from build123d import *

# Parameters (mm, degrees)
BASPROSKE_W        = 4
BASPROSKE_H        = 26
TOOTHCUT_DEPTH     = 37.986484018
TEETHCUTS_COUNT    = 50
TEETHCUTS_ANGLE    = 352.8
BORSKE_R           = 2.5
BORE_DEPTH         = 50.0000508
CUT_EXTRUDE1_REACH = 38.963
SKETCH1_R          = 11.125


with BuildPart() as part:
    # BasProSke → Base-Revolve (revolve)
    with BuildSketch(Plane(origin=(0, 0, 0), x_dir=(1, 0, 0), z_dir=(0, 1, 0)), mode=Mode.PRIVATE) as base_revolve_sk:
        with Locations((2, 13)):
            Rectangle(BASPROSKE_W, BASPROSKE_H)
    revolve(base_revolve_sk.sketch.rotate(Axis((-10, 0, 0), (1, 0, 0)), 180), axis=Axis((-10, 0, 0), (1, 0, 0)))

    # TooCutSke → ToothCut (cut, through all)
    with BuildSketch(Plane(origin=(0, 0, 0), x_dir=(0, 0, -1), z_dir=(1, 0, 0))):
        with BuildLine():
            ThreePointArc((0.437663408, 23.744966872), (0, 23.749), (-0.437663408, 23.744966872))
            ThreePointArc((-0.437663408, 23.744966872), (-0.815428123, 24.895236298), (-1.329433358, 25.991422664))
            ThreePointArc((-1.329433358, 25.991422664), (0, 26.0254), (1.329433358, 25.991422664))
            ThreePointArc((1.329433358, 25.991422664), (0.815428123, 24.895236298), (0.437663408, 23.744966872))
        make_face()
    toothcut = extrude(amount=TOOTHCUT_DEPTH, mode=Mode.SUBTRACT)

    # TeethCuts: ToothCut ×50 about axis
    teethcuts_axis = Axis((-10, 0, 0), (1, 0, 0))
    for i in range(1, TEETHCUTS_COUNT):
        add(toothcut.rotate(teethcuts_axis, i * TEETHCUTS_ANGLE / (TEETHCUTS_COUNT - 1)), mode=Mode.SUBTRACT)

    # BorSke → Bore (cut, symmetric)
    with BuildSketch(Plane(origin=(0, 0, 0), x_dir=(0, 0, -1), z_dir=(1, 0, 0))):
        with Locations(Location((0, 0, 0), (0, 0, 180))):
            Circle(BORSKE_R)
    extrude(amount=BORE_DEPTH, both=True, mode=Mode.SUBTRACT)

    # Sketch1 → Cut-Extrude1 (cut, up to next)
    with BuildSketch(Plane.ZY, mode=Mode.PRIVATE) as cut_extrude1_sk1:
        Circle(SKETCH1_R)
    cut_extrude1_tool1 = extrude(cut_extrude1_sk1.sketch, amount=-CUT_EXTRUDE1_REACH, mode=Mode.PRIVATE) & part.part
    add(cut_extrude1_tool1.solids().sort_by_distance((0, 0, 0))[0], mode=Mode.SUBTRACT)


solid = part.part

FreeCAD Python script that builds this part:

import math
import FreeCAD as App
import Part
import Sketcher
Q = App.Units.Quantity

doc = App.newDocument("Part")
params = doc.addObject("Spreadsheet::Sheet", "Params")
for row, (alias, value) in enumerate([
    ("sketch1_width", "4 mm"),
    ("sketch1_height", "26 mm"),
    ("revolution_angle", "360 deg"),
    ("sketch2_radius", "10 mm"),
    ("sketch3_diameter", "5 mm"),
    ("pocket2_length", "100.000102 mm"),
    ("sketch4_diameter", "22.25 mm"),
    ("pocket3_length", "4 mm"),
], start=1):
    params.set(f"A{row}", alias)
    params.set(f"B{row}", "=" + value)
    params.setAlias(f"B{row}", alias)

body = doc.addObject("PartDesign::Body", "Body")

# Sketch on XZ plane
sketch1 = doc.addObject("Sketcher::SketchObject", "Sketch")
body.addObject(sketch1)
sketch1.AttachmentSupport = (doc.XZ_Plane, [""])
sketch1.MapMode = "FlatFace"
sketch1.addGeometry([
    Part.LineSegment(App.Vector(0, -26, 0), App.Vector(0, 0, 0)),
    Part.LineSegment(App.Vector(0, 0, 0), App.Vector(4, 0, 0)),
    Part.LineSegment(App.Vector(4, 0, 0), App.Vector(4, -26, 0)),
    Part.LineSegment(App.Vector(4, -26, 0), App.Vector(0, -26, 0)),
], False)
sketch1.addConstraint([
    Sketcher.Constraint("Coincident", 0, 2, 1, 1),
    Sketcher.Constraint("Coincident", 1, 2, 2, 1),
    Sketcher.Constraint("Coincident", 2, 2, 3, 1),
    Sketcher.Constraint("Coincident", 3, 2, 0, 1),
    Sketcher.Constraint("Vertical", 0),
    Sketcher.Constraint("Horizontal", 1),
    Sketcher.Constraint("Vertical", 2),
    Sketcher.Constraint("Horizontal", 3),
    Sketcher.Constraint("Coincident", 0, 2, -1, 1),
    Sketcher.Constraint("DistanceX", 1, 1, 1, 2, Q("4 mm")),
    Sketcher.Constraint("DistanceY", 0, 1, 0, 2, Q("26 mm")),
])
sketch1.setExpression("Constraints[9]", "Params.sketch1_width")
sketch1.setExpression("Constraints[10]", "Params.sketch1_height")
revolution = doc.addObject("PartDesign::Revolution", "Revolution")
body.addObject(revolution)
revolution.Profile = sketch1
revolution.ReferenceAxis = (sketch1, ["H_Axis"])
revolution.setExpression("Angle", "Params.revolution_angle")

# Sketch on YZ plane
sketch2 = doc.addObject("Sketcher::SketchObject", "Sketch001")
body.addObject(sketch2)
sketch2.AttachmentSupport = (doc.YZ_Plane, [""])
sketch2.MapMode = "FlatFace"
sketch2.addGeometry([
    Part.ArcOfCircle(Part.Circle(App.Vector(-0.000001, 0, 0), App.Vector(0, 0, 1), 23.749001), math.radians(-1.055947), math.radians(1.055947)),
    Part.ArcOfCircle(Part.Circle(App.Vector(21.20564, -10.109882, 0), App.Vector(0, 0, 1), 10), math.radians(61.407413), math.radians(75.289649)),
    Part.ArcOfCircle(Part.Circle(App.Vector(0, 0, 0), App.Vector(0, 0, 1), 26.0254), math.radians(-2.928066), math.radians(2.928066)),
    Part.ArcOfCircle(Part.Circle(App.Vector(21.20564, 10.109882, 0), App.Vector(0, 0, 1), 10), math.radians(-75.289649), math.radians(-61.407413)),
], False)
sketch2.addConstraint([
    Sketcher.Constraint("Coincident", 0, 1, 1, 2),
    Sketcher.Constraint("Coincident", 1, 1, 2, 1),
    Sketcher.Constraint("Coincident", 2, 2, 3, 2),
    Sketcher.Constraint("Coincident", 3, 1, 0, 2),
    Sketcher.Constraint("Coincident", 0, 3, -1, 1),
    Sketcher.Constraint("Coincident", 2, 3, -1, 1),
    Sketcher.Constraint("Equal", 1, 3),
    Sketcher.Constraint("Symmetric", 1, 3, 3, 3, -1),
    Sketcher.Constraint("Radius", 1, Q("10 mm")),
    Sketcher.Constraint("Radius", 0, Q("23.749001 mm")),
    Sketcher.Constraint("Radius", 2, Q("26.0254 mm")),
    Sketcher.Constraint("DistanceX", -1, 1, 1, 3, Q("21.20564 mm")),
    Sketcher.Constraint("DistanceX", 0, 3, 0, 1, Q("23.744968 mm")),
])
sketch2.setExpression("Constraints[8]", "Params.sketch2_radius")
pocket1 = doc.addObject("PartDesign::Pocket", "Pocket")
body.addObject(pocket1)
pocket1.Profile = sketch2
pocket1.Type = "ThroughAll"
pocket1.Reversed = True
doc.recompute()

polarpattern = doc.addObject("PartDesign::PolarPattern", "PolarPattern")
body.addObject(polarpattern)
polarpattern.Originals = [pocket1]
polarpattern.Axis = (doc.X_Axis, [""])
polarpattern.Angle = 360
polarpattern.Occurrences = 50
body.Tip = polarpattern

# Sketch on YZ plane
sketch3 = doc.addObject("Sketcher::SketchObject", "Sketch002")
body.addObject(sketch3)
sketch3.AttachmentSupport = (doc.YZ_Plane, [""])
sketch3.MapMode = "FlatFace"
sketch3.addGeometry(Part.Circle(App.Vector(0, 0, 0), App.Vector(0, 0, 1), 2.5), False)
sketch3.addConstraint([
    Sketcher.Constraint("Coincident", 0, 3, -1, 1),
    Sketcher.Constraint("Diameter", 0, Q("5 mm")),
])
sketch3.setExpression("Constraints[1]", "Params.sketch3_diameter")
pocket2 = doc.addObject("PartDesign::Pocket", "Pocket001")
body.addObject(pocket2)
pocket2.Profile = sketch3
pocket2.setExpression("Length", "Params.pocket2_length")
pocket2.Midplane = True

# Sketch on YZ plane
sketch4 = doc.addObject("Sketcher::SketchObject", "Sketch003")
body.addObject(sketch4)
sketch4.AttachmentSupport = (doc.YZ_Plane, [""])
sketch4.MapMode = "FlatFace"
sketch4.addGeometry(Part.Circle(App.Vector(0, 0, 0), App.Vector(0, 0, 1), 11.125), False)
sketch4.addConstraint([
    Sketcher.Constraint("Coincident", 0, 3, -1, 1),
    Sketcher.Constraint("Diameter", 0, Q("22.25 mm")),
])
sketch4.setExpression("Constraints[1]", "Params.sketch4_diameter")
pocket3 = doc.addObject("PartDesign::Pocket", "Pocket002")
body.addObject(pocket3)
pocket3.Profile = sketch4
pocket3.setExpression("Length", "Params.pocket3_length")
pocket3.Reversed = True

doc.recompute()
